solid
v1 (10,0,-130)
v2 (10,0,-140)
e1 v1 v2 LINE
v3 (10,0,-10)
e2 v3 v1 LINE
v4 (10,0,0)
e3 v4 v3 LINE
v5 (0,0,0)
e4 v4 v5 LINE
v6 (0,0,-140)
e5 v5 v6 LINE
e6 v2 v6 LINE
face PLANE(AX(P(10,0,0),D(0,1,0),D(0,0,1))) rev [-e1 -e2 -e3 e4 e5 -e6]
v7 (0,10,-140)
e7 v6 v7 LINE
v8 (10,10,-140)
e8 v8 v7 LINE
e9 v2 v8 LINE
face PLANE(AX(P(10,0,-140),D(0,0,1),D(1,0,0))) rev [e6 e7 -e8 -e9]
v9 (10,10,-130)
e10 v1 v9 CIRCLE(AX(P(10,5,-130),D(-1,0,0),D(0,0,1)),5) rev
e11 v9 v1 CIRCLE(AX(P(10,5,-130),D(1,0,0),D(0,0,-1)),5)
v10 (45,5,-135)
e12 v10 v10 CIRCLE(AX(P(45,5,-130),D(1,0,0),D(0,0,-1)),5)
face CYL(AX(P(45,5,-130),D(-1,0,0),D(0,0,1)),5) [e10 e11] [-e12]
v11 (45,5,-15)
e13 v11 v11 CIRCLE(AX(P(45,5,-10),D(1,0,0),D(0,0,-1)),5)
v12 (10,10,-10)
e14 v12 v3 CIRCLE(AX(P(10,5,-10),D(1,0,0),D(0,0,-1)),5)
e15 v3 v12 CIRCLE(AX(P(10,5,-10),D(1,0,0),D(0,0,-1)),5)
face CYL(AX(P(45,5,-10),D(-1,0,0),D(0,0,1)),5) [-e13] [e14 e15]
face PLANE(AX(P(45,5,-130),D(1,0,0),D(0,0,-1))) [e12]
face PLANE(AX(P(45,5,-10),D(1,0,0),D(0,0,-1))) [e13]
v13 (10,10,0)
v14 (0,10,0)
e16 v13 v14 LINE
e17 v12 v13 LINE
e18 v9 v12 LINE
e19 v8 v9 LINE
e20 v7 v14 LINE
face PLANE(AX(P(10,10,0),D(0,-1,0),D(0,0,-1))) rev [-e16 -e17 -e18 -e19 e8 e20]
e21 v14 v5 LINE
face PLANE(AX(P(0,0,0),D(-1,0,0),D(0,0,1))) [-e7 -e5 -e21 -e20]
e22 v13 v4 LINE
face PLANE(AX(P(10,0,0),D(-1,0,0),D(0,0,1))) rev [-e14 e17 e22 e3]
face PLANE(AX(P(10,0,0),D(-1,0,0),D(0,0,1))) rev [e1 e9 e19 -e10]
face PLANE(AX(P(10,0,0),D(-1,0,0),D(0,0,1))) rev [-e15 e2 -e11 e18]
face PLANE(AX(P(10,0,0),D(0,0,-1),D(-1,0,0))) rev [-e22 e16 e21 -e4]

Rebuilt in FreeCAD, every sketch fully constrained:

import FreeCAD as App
import Part
import Sketcher
Q = App.Units.Quantity

doc = App.newDocument("Part")
body = doc.addObject("PartDesign::Body", "Body")

# Sketch on YZ plane
sketch1 = body.newObject("Sketcher::SketchObject", "Sketch")
sketch1.AttachmentSupport = (doc.getObject("YZ_Plane"), [""])
sketch1.MapMode = "FlatFace"
sketch1.addGeometry(Part.LineSegment(App.Vector(10, 0, 0), App.Vector(0, 0, 0)), False)
sketch1.addGeometry(Part.LineSegment(App.Vector(0, 0, 0), App.Vector(0, -140, 0)), False)
sketch1.addGeometry(Part.LineSegment(App.Vector(0, -140, 0), App.Vector(10, -140, 0)), False)
sketch1.addGeometry(Part.LineSegment(App.Vector(10, -140, 0), App.Vector(10, 0, 0)), False)
sketch1.addConstraint(Sketcher.Constraint("Coincident", 0, 2, 1, 1))
sketch1.addConstraint(Sketcher.Constraint("Coincident", 1, 2, 2, 1))
sketch1.addConstraint(Sketcher.Constraint("Coincident", 2, 2, 3, 1))
sketch1.addConstraint(Sketcher.Constraint("Coincident", 3, 2, 0, 1))
sketch1.addConstraint(Sketcher.Constraint("Horizontal", 0))
sketch1.addConstraint(Sketcher.Constraint("Vertical", 1))
sketch1.addConstraint(Sketcher.Constraint("Horizontal", 2))
sketch1.addConstraint(Sketcher.Constraint("Vertical", 3))
sketch1.addConstraint(Sketcher.Constraint("Coincident", 0, 2, -1, 1))
sketch1.addConstraint(Sketcher.Constraint("DistanceX", 0, 2, 0, 1, Q("10 mm")))
sketch1.addConstraint(Sketcher.Constraint("DistanceY", 1, 2, 1, 1, Q("140 mm")))
pad1 = body.newObject("PartDesign::Pad", "Pad")
pad1.Profile = sketch1
pad1.Length = 10

# Sketch on YZ plane
sketch2 = body.newObject("Sketcher::SketchObject", "Sketch001")
sketch2.AttachmentSupport = (doc.getObject("YZ_Plane"), [""])
sketch2.MapMode = "FlatFace"
sketch2.AttachmentOffset = App.Placement(App.Vector(0, 0, 10), App.Rotation())
sketch2.addGeometry(Part.Circle(App.Vector(5, -10, 0), App.Vector(0, 0, 1), 5), False)
sketch2.addGeometry(Part.Circle(App.Vector(5, -130, 0), App.Vector(0, 0, 1), 5), False)
sketch2.addConstraint(Sketcher.Constraint("Equal", 0, 1))
sketch2.addConstraint(Sketcher.Constraint("Vertical", 0, 3, 1, 3))
sketch2.addConstraint(Sketcher.Constraint("Diameter", 0, Q("10 mm")))
sketch2.addConstraint(Sketcher.Constraint("DistanceX", -1, 1, 0, 3, Q("5 mm")))
sketch2.addConstraint(Sketcher.Constraint("DistanceY", 0, 3, -1, 1, Q("10 mm")))
sketch2.addConstraint(Sketcher.Constraint("DistanceY", 1, 3, -1, 1, Q("130 mm")))
pad2 = body.newObject("PartDesign::Pad", "Pad001")
pad2.Profile = sketch2
pad2.Length = 35

doc.recompute()
